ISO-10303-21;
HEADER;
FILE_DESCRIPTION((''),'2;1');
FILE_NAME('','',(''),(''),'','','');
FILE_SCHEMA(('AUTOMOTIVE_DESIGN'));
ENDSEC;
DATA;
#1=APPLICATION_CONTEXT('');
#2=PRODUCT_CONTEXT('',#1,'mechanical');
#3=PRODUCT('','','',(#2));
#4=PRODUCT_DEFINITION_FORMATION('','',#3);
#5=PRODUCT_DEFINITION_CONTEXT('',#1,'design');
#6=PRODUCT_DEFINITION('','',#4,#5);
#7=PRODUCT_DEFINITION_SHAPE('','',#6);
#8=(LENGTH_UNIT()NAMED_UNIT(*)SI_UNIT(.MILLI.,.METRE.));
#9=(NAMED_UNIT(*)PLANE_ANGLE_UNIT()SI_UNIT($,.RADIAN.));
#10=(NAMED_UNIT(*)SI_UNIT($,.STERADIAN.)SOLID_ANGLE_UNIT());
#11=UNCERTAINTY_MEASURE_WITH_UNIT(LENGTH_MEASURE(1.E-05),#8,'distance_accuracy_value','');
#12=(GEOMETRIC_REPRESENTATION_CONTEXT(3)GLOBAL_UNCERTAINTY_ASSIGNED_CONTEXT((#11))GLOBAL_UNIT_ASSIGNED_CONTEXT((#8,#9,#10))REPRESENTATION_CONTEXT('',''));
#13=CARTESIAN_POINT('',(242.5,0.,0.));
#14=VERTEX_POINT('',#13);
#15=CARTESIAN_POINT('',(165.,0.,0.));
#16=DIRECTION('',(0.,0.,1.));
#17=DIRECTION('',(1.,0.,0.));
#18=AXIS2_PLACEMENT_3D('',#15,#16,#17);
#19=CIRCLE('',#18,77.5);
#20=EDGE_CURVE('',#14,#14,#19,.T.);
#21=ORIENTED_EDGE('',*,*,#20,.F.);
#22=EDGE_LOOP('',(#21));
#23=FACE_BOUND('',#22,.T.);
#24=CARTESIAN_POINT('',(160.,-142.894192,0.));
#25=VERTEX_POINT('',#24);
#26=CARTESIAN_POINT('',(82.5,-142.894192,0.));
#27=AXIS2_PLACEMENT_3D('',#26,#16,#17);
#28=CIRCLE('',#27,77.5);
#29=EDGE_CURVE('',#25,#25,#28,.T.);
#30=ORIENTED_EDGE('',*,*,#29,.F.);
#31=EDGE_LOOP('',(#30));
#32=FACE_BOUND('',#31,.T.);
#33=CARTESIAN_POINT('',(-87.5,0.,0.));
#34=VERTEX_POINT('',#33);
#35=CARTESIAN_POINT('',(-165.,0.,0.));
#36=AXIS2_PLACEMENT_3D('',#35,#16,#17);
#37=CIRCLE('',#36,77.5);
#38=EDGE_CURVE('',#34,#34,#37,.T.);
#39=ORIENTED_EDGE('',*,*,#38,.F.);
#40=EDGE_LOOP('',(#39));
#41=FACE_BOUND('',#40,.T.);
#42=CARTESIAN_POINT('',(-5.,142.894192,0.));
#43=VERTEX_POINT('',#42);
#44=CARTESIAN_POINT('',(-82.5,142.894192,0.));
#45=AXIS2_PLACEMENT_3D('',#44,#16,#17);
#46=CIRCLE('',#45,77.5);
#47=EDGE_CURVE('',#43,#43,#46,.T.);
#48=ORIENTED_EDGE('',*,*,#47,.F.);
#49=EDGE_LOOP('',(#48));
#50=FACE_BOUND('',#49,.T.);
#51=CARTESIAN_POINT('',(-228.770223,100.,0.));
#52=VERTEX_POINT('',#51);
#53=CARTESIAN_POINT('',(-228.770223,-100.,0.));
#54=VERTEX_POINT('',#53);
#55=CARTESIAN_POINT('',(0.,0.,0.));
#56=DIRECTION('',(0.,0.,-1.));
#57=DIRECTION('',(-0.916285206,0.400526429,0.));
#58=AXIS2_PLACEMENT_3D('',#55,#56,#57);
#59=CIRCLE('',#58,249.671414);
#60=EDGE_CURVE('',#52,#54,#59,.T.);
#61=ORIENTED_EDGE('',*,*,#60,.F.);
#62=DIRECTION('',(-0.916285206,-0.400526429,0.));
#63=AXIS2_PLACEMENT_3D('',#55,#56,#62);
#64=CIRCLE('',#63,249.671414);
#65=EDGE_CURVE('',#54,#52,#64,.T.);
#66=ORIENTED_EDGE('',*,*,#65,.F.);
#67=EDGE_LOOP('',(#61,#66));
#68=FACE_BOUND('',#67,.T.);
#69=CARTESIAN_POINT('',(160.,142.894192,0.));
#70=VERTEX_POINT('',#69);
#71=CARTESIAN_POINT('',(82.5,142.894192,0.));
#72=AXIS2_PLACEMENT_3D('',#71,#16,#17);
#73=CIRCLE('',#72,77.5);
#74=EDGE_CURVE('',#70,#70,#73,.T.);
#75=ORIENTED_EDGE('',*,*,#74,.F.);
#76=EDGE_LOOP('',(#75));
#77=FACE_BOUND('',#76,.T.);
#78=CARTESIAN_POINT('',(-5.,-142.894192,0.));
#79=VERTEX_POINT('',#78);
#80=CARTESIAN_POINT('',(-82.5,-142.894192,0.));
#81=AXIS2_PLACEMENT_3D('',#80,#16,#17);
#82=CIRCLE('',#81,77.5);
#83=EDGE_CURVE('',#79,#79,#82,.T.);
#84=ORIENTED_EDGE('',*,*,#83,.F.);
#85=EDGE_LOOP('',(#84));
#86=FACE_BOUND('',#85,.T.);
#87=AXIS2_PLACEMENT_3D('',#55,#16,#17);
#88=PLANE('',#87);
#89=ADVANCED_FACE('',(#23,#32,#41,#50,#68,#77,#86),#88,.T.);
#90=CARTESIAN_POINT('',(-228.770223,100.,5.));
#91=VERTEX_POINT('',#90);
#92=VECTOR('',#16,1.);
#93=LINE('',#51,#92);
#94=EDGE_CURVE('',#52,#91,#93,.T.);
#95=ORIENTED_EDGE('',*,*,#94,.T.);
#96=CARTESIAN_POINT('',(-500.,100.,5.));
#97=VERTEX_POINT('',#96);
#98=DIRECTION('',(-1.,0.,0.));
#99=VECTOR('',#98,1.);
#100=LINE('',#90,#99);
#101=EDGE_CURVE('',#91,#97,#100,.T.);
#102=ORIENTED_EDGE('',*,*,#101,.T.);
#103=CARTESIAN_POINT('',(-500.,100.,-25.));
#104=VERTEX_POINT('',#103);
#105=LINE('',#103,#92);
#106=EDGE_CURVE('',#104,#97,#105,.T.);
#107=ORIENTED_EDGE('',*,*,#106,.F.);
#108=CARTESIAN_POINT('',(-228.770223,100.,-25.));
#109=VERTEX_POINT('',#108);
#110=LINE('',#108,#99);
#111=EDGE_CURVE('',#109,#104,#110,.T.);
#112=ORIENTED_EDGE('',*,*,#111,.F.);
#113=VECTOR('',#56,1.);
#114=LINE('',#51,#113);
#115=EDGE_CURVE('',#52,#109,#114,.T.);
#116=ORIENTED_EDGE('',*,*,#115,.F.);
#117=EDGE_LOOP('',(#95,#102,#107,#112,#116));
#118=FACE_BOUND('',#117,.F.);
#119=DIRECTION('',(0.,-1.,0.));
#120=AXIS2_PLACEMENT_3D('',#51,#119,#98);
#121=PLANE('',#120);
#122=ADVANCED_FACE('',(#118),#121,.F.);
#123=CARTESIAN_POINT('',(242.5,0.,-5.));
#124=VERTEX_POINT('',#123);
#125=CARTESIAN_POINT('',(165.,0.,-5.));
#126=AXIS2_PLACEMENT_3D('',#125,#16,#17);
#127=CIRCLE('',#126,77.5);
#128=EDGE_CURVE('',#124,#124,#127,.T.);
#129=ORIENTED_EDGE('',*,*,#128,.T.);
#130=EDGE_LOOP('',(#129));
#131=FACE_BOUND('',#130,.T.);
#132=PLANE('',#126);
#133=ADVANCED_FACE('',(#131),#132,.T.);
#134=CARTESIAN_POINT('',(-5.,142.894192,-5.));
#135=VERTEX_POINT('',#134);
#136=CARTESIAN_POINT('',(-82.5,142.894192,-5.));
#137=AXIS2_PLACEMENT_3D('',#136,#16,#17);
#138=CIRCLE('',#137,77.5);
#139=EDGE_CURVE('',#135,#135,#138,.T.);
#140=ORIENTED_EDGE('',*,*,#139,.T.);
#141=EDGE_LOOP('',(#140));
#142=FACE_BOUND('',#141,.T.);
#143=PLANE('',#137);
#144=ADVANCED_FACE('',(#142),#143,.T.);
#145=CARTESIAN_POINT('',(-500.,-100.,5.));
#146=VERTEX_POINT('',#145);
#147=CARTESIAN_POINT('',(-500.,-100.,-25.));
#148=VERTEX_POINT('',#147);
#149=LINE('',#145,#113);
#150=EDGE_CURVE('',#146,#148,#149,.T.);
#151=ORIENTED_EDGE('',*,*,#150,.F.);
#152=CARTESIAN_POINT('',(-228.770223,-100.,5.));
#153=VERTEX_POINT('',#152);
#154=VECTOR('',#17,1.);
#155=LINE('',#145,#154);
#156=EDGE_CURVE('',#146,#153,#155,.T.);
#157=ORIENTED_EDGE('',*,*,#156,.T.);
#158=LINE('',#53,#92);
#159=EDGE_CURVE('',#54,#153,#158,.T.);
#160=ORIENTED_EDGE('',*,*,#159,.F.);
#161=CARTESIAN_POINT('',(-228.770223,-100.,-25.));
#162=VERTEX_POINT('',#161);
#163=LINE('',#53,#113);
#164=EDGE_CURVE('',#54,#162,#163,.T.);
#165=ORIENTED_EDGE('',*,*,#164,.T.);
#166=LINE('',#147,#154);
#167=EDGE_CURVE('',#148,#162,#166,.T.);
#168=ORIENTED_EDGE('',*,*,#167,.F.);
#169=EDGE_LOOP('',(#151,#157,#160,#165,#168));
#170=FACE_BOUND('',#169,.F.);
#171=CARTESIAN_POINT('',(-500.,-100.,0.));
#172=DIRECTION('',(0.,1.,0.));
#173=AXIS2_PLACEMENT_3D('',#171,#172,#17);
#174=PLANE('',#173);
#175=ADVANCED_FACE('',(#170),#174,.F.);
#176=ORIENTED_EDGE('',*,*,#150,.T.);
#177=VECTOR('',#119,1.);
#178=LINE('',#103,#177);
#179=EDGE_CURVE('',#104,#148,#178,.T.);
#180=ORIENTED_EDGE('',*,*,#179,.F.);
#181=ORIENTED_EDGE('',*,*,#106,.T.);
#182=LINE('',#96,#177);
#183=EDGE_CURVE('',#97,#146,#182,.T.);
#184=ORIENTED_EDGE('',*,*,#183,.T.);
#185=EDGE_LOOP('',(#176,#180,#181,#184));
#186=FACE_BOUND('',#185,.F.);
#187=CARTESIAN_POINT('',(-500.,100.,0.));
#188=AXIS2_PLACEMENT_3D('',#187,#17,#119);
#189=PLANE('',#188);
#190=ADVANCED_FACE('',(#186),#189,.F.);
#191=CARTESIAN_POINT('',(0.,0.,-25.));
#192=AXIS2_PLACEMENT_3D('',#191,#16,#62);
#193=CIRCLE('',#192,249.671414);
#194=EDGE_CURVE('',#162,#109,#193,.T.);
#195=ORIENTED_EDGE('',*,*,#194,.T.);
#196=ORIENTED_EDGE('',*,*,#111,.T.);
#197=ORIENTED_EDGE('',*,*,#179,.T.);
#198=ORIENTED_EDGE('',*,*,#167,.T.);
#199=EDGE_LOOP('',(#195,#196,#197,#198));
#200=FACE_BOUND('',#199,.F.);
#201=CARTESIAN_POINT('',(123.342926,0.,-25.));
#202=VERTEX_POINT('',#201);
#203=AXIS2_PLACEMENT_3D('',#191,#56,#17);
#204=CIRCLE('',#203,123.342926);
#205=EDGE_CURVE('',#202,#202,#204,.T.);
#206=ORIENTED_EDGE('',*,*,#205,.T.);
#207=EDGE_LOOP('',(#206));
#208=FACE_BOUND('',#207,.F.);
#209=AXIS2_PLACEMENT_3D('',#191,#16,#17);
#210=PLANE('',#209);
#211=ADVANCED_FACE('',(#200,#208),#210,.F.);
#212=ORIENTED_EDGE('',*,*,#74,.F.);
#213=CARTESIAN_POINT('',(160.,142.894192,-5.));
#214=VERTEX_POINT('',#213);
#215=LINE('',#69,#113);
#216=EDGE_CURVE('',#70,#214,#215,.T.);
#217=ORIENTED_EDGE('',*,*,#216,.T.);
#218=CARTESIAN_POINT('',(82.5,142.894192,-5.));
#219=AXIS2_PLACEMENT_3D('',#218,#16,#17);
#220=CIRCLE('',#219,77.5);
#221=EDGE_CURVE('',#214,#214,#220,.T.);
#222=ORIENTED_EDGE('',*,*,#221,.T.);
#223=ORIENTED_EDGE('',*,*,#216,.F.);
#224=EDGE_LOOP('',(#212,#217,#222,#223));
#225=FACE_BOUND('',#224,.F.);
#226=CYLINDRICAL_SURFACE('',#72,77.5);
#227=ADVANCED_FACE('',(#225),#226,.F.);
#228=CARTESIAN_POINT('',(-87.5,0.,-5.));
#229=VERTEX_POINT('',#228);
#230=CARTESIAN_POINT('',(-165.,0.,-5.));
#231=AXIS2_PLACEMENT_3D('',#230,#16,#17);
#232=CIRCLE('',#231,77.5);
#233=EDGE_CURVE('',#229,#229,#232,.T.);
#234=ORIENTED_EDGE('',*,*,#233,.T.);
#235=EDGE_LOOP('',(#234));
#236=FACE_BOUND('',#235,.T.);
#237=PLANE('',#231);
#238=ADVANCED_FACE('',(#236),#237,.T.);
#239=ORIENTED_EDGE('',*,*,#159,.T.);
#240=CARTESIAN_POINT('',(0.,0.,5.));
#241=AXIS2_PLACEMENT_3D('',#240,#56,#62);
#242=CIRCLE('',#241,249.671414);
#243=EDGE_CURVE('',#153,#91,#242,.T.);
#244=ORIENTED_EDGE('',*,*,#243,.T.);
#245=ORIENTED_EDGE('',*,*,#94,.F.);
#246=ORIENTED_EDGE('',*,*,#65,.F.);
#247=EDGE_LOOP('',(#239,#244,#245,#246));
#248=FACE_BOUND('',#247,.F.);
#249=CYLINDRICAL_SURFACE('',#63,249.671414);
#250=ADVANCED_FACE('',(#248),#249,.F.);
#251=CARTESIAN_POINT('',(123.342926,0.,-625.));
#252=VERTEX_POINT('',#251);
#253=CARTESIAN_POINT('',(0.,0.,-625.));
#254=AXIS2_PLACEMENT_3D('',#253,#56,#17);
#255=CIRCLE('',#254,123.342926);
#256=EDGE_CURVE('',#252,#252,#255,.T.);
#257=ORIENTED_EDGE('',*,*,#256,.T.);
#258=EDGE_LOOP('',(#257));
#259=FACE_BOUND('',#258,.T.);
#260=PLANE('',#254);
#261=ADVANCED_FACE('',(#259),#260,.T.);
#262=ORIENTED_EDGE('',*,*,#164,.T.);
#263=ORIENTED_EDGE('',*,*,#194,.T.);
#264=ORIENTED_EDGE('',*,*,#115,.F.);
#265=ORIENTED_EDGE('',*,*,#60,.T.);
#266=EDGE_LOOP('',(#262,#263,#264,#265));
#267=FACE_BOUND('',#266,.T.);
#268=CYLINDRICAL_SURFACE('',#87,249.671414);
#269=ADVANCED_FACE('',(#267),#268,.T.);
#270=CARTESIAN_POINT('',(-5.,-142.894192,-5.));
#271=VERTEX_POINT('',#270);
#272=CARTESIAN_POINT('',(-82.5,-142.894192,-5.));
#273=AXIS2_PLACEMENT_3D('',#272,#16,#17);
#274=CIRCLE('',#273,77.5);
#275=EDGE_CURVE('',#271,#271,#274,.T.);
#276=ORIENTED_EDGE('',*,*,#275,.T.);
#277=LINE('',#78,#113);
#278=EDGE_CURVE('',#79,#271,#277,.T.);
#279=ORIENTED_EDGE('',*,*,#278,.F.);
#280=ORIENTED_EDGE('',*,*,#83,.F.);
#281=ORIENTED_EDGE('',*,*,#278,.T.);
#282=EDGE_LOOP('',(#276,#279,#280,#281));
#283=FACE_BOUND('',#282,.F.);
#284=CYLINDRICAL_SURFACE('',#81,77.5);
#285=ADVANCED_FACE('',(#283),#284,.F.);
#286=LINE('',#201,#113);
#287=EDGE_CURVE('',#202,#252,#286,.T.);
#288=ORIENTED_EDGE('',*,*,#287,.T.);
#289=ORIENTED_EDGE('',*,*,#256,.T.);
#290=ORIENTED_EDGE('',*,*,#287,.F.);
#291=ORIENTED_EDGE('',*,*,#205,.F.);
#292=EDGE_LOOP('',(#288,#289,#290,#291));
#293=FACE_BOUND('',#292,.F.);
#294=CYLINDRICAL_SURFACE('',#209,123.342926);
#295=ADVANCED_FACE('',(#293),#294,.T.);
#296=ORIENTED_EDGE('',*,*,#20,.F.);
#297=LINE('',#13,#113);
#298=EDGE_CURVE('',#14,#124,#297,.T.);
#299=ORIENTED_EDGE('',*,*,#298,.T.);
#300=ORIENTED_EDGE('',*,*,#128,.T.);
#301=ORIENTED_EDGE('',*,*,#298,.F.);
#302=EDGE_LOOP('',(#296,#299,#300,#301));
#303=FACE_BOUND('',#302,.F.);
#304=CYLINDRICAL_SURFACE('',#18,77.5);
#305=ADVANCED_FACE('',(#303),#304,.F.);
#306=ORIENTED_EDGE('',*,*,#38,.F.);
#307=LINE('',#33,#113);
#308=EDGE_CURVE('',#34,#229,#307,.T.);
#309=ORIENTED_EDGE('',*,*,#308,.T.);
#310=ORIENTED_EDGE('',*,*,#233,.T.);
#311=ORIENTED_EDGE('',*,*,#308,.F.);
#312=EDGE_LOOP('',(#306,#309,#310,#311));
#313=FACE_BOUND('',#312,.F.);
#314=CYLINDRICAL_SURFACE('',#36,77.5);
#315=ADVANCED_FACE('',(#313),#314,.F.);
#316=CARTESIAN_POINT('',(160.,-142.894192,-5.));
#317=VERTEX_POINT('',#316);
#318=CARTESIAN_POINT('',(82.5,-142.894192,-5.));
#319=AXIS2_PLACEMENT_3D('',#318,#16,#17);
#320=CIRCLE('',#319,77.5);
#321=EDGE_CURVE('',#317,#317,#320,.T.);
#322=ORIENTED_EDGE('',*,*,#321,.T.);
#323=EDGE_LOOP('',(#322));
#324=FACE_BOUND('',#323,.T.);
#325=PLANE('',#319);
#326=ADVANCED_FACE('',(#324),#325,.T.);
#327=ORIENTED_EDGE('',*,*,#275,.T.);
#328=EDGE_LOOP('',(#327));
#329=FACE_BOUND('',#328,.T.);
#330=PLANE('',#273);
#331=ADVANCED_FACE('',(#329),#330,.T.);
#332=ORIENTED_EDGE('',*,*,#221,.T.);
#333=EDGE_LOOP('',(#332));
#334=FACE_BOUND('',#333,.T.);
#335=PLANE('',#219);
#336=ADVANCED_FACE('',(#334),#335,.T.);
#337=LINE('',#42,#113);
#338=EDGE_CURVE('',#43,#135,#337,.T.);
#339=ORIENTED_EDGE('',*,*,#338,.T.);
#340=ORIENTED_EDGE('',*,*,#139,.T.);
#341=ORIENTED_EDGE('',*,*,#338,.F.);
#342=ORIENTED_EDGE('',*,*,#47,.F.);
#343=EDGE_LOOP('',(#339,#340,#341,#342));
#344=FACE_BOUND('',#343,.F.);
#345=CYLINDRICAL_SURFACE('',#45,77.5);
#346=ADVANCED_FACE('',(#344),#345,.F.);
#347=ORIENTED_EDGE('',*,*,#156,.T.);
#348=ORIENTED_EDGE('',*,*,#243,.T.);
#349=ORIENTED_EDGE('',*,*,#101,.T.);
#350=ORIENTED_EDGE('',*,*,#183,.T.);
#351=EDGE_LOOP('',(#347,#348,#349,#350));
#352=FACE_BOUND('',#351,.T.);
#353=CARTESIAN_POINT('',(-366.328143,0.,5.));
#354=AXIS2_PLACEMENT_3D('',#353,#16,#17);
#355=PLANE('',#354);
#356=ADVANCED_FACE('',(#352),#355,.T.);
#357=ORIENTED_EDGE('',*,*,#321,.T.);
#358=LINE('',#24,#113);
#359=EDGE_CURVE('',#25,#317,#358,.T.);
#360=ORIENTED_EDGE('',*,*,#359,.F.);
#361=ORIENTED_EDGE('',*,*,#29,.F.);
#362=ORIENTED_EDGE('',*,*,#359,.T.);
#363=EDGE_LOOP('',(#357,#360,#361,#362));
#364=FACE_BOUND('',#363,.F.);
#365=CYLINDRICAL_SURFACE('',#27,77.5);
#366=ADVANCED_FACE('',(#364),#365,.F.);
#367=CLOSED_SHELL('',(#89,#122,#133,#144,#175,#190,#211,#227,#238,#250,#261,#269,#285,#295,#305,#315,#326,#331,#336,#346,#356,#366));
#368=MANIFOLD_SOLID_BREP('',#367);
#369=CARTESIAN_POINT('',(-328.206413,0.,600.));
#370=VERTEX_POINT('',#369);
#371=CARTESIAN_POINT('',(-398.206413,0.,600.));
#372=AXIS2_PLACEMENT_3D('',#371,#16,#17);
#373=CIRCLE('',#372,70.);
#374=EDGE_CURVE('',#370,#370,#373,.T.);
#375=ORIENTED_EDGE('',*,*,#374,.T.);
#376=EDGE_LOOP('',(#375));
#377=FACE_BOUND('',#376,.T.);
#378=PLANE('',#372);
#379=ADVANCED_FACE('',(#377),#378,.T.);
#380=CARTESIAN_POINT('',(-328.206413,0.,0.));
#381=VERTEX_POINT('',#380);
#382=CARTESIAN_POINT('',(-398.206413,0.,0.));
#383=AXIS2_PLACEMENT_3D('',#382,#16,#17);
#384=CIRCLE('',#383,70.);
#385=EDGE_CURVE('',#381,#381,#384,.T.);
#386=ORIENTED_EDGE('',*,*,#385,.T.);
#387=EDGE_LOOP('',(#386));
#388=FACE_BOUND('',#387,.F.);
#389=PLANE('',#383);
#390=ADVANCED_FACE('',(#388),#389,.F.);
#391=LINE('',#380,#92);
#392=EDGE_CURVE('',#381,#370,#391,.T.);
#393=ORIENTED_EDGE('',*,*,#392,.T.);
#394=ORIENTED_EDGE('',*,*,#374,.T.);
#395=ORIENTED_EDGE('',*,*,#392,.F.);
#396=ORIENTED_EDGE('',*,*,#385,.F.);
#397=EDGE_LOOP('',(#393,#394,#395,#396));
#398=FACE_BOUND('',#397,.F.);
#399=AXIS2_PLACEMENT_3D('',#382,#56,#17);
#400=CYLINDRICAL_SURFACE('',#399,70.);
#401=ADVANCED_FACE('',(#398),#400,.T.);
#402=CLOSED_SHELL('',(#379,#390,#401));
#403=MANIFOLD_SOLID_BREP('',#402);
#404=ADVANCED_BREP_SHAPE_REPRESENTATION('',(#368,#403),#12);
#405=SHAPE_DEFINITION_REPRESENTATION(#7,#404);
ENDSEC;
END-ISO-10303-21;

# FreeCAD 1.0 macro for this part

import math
import FreeCAD as App
import Part
import Sketcher
from FreeCAD import Vector

doc = App.newDocument("Part")
body = doc.addObject("PartDesign::Body", "Body")

# Sketch on XY plane
sketch1 = doc.addObject("Sketcher::SketchObject", "Sketch")
body.addObject(sketch1)
sketch1.AttachmentSupport = (doc.XY_Plane, [""])
sketch1.MapMode = "FlatFace"
sketch1.addGeometry(Part.Circle(Vector(0, 0, 0), Vector(0, 0, 1), 249.671414), False)
sketch1.addConstraint(Sketcher.Constraint("Coincident", 0, 3, -1, 1))
sketch1.addConstraint(Sketcher.Constraint("Diameter", 0, 499.342828))
pad1 = doc.addObject("PartDesign::Pad", "Pad")
body.addObject(pad1)
pad1.Profile = sketch1
pad1.Length = 25
pad1.Reversed = True

# Sketch on XY plane
sketch2 = doc.addObject("Sketcher::SketchObject", "Sketch001")
body.addObject(sketch2)
sketch2.AttachmentSupport = (doc.XY_Plane, [""])
sketch2.MapMode = "FlatFace"
sketch2.addGeometry(Part.Circle(Vector(-82.5, 142.894192, 0), Vector(0, 0, 1), 77.5), False)
sketch2.addGeometry(Part.Circle(Vector(82.5, 142.894192, 0), Vector(0, 0, 1), 77.5), False)
sketch2.addGeometry(Part.Circle(Vector(165, 0, 0), Vector(0, 0, 1), 77.5), False)
sketch2.addGeometry(Part.Circle(Vector(82.5, -142.894192, 0), Vector(0, 0, 1), 77.5), False)
sketch2.addGeometry(Part.Circle(Vector(-82.5, -142.894192, 0), Vector(0, 0, 1), 77.5), False)
sketch2.addGeometry(Part.Circle(Vector(-165, 0, 0), Vector(0, 0, 1), 77.5), False)
sketch2.addConstraint(Sketcher.Constraint("Equal", 0, 1))
sketch2.addConstraint(Sketcher.Constraint("Equal", 1, 2))
sketch2.addConstraint(Sketcher.Constraint("Equal", 2, 3))
sketch2.addConstraint(Sketcher.Constraint("Equal", 3, 4))
sketch2.addConstraint(Sketcher.Constraint("Equal", 4, 5))
sketch2.addConstraint(Sketcher.Constraint("Symmetric", 0, 3, 3, 3, -1, 1))
sketch2.addConstraint(Sketcher.Constraint("Symmetric", 1, 3, 4, 3, -1, 1))
sketch2.addConstraint(Sketcher.Constraint("Symmetric", 2, 3, 5, 3, -1, 1))
sketch2.addConstraint(Sketcher.Constraint("Symmetric", 0, 3, 1, 3, -2))
sketch2.addConstraint(Sketcher.Constraint("PointOnObject", 2, 3, -1))
sketch2.addConstraint(Sketcher.Constraint("Diameter", 0, 155.0))
sketch2.addConstraint(Sketcher.Constraint("DistanceX", -1, 1, 2, 3, 165.0))
sketch2.addConstraint(Sketcher.Constraint("DistanceX", 0, 3, 1, 3, 165.0))
sketch2.addConstraint(Sketcher.Constraint("DistanceY", -1, 1, 0, 3, 142.894192))
pocket1 = doc.addObject("PartDesign::Pocket", "Pocket")
body.addObject(pocket1)
pocket1.Profile = sketch2
pocket1.Length = 5

# Sketch on XY plane
sketch3 = doc.addObject("Sketcher::SketchObject", "Sketch002")
body.addObject(sketch3)
sketch3.AttachmentSupport = (doc.XY_Plane, [""])
sketch3.MapMode = "FlatFace"
sketch3.addGeometry(Part.ArcOfCircle(Part.Circle(Vector(0, 0, 0), Vector(0, 0, 1), 249.671414), math.radians(156.388908), math.radians(203.611092)), False)
sketch3.addGeometry(Part.LineSegment(Vector(-228.770223, 100, 0), Vector(-500, 100, 0)), False)
sketch3.addGeometry(Part.LineSegment(Vector(-500, 100, 0), Vector(-500, -100, 0)), False)
sketch3.addGeometry(Part.LineSegment(Vector(-500, -100, 0), Vector(-228.770223, -100, 0)), False)
sketch3.addConstraint(Sketcher.Constraint("Coincident", 0, 1, 1, 1))
sketch3.addConstraint(Sketcher.Constraint("Coincident", 1, 2, 2, 1))
sketch3.addConstraint(Sketcher.Constraint("Coincident", 2, 2, 3, 1))
sketch3.addConstraint(Sketcher.Constraint("Coincident", 3, 2, 0, 2))
sketch3.addConstraint(Sketcher.Constraint("Horizontal", 1))
sketch3.addConstraint(Sketcher.Constraint("Vertical", 2))
sketch3.addConstraint(Sketcher.Constraint("Horizontal", 3))
sketch3.addConstraint(Sketcher.Constraint("Coincident", 0, 3, -1, 1))
sketch3.addConstraint(Sketcher.Constraint("Vertical", 0, 1, 3, 2))
sketch3.addConstraint(Sketcher.Constraint("DistanceY", 2, 2, 2, 1, 200.0))
sketch3.addConstraint(Sketcher.Constraint("DistanceX", 1, 2, -1, 1, 500.0))
sketch3.addConstraint(Sketcher.Constraint("Radius", 0, 249.671414))
pad2 = doc.addObject("PartDesign::Pad", "Pad001")
body.addObject(pad2)
pad2.Profile = sketch3
pad2.Type = "TwoLengths"
pad2.Length = 25
pad2.Length2 = 5
pad2.Reversed = True

# Sketch on XY plane
sketch4 = doc.addObject("Sketcher::SketchObject", "Sketch003")
body.addObject(sketch4)
sketch4.AttachmentSupport = (doc.XY_Plane, [""])
sketch4.MapMode = "FlatFace"
sketch4.AttachmentOffset = App.Placement(Vector(0, 0, -25), App.Rotation())
sketch4.addGeometry(Part.Circle(Vector(0, 0, 0), Vector(0, 0, 1), 123.342926), False)
sketch4.addConstraint(Sketcher.Constraint("Coincident", 0, 3, -1, 1))
sketch4.addConstraint(Sketcher.Constraint("Diameter", 0, 246.685851))
pad3 = doc.addObject("PartDesign::Pad", "Pad002")
body.addObject(pad3)
pad3.Profile = sketch4
pad3.Length = 600
pad3.Reversed = True
body2 = doc.addObject("PartDesign::Body", "Body001")

# Sketch on XY plane
sketch5 = doc.addObject("Sketcher::SketchObject", "Sketch004")
body2.addObject(sketch5)
sketch5.AttachmentSupport = (doc.getObject("XY_Plane001"), [""])
sketch5.MapMode = "FlatFace"
sketch5.addGeometry(Part.Circle(Vector(-398.206413, 0, 0), Vector(0, 0, 1), 70), False)
sketch5.addConstraint(Sketcher.Constraint("PointOnObject", 0, 3, -1))
sketch5.addConstraint(Sketcher.Constraint("Diameter", 0, 140.0))
sketch5.addConstraint(Sketcher.Constraint("DistanceX", 0, 3, -1, 1, 398.206413))
pad4 = doc.addObject("PartDesign::Pad", "Pad003")
body2.addObject(pad4)
pad4.Profile = sketch5
pad4.Length = 600

doc.recompute()
